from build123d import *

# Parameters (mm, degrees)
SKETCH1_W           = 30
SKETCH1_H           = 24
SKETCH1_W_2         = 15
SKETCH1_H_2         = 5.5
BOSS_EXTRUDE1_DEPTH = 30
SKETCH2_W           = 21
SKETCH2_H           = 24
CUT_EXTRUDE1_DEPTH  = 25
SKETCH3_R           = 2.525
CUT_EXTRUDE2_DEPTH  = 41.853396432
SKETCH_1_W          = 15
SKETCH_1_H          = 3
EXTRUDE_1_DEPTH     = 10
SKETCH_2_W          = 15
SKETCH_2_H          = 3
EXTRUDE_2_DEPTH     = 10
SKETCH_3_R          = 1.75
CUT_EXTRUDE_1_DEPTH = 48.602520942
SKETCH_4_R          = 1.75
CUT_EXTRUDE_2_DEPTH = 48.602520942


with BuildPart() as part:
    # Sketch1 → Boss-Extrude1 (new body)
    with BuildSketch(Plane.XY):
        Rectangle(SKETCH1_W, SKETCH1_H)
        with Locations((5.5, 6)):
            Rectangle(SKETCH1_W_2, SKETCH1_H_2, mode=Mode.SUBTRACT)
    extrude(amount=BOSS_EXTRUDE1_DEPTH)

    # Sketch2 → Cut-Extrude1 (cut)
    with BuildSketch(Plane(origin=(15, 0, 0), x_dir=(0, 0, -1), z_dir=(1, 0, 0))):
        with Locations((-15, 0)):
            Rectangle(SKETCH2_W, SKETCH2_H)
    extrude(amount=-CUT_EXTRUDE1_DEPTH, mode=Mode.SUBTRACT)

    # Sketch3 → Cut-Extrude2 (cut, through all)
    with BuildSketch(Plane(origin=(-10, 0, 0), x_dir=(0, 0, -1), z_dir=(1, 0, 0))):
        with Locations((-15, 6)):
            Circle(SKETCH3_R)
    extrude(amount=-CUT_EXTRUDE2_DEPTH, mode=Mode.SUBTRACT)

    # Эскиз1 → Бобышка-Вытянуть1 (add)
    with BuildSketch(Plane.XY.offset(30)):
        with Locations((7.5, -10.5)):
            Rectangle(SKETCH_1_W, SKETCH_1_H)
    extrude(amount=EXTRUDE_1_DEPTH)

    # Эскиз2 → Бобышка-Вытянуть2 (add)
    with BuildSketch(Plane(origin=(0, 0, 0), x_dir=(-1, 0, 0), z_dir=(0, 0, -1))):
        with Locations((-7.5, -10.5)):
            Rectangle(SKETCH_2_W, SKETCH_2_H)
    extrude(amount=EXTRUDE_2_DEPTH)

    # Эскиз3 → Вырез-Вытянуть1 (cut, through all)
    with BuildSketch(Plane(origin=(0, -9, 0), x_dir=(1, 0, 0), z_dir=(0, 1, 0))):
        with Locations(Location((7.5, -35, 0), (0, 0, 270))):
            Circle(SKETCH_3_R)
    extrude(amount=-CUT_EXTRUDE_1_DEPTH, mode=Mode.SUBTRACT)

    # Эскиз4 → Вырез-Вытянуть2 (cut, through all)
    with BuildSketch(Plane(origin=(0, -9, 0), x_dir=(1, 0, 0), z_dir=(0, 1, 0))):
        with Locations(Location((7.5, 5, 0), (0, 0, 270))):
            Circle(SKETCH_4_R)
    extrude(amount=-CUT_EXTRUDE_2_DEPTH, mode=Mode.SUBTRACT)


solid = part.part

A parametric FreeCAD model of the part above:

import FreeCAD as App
import Part
import Sketcher

doc = App.newDocument("Part")
body = doc.addObject("PartDesign::Body", "Body")

# Sketch on XY plane
sketch1 = doc.addObject("Sketcher::SketchObject", "Sketch")
body.addObject(sketch1)
sketch1.AttachmentSupport = (doc.XY_Plane, [""])
sketch1.MapMode = "FlatFace"
sketch1.addGeometry([
    Part.LineSegment(App.Vector(-15, 12, 0), App.Vector(-15, -12, 0)),  # 0
    Part.LineSegment(App.Vector(-15, -12, 0), App.Vector(15, -12, 0)),  # 1
    Part.LineSegment(App.Vector(15, -12, 0), App.Vector(15, 12, 0)),  # 2
    Part.LineSegment(App.Vector(15, 12, 0), App.Vector(-15, 12, 0)),  # 3
    Part.LineSegment(App.Vector(13, 3, 0), App.Vector(-2, 3, 0)),  # 4
    Part.LineSegment(App.Vector(-2, 3, 0), App.Vector(-2, 9, 0)),  # 5
    Part.LineSegment(App.Vector(-2, 9, 0), App.Vector(13, 9, 0)),  # 6
    Part.LineSegment(App.Vector(13, 9, 0), App.Vector(13, 3, 0)),  # 7
], False)
sketch1.addConstraint([
    Sketcher.Constraint("Coincident", 0, 2, 1, 1),
    Sketcher.Constraint("Coincident", 1, 2, 2, 1),
    Sketcher.Constraint("Coincident", 2, 2, 3, 1),
    Sketcher.Constraint("Coincident", 3, 2, 0, 1),
    Sketcher.Constraint("Coincident", 4, 2, 5, 1),
    Sketcher.Constraint("Coincident", 5, 2, 6, 1),
    Sketcher.Constraint("Coincident", 6, 2, 7, 1),
    Sketcher.Constraint("Coincident", 7, 2, 4, 1),
    Sketcher.Constraint("Vertical", 0),
    Sketcher.Constraint("Horizontal", 1),
    Sketcher.Constraint("Vertical", 2),
    Sketcher.Constraint("Horizontal", 3),
    Sketcher.Constraint("Horizontal", 4),
    Sketcher.Constraint("Vertical", 5),
    Sketcher.Constraint("Horizontal", 6),
    Sketcher.Constraint("Vertical", 7),
    Sketcher.Constraint("Symmetric", 0, 2, 2, 2, -1, 1),
    Sketcher.Constraint("DistanceX", 1, 1, 1, 2, 30.0),
    Sketcher.Constraint("DistanceX", 4, 2, 4, 1, 15.0),
    Sketcher.Constraint("DistanceY", 0, 2, 0, 1, 24.0),
    Sketcher.Constraint("DistanceY", 5, 1, 5, 2, 5.5),
    Sketcher.Constraint("DistanceX", 4, 2, -1, 1, 2.0),
    Sketcher.Constraint("DistanceY", -1, 1, 4, 2, 3.25),
])
pad1 = doc.addObject("PartDesign::Pad", "Pad")
body.addObject(pad1)
pad1.Profile = sketch1
pad1.Length = 30

# Sketch on YZ plane
sketch2 = doc.addObject("Sketcher::SketchObject", "Sketch001")
body.addObject(sketch2)
sketch2.AttachmentSupport = (doc.YZ_Plane, [""])
sketch2.MapMode = "FlatFace"
sketch2.AttachmentOffset = App.Placement(App.Vector(0, 0, 15), App.Rotation())
sketch2.addGeometry([
    Part.LineSegment(App.Vector(12, 26, 0), App.Vector(-12, 26, 0)),
    Part.LineSegment(App.Vector(-12, 26, 0), App.Vector(-12, 4, 0)),
    Part.LineSegment(App.Vector(-12, 4, 0), App.Vector(12, 4, 0)),
    Part.LineSegment(App.Vector(12, 4, 0), App.Vector(12, 26, 0)),
], False)
sketch2.addConstraint([
    Sketcher.Constraint("Coincident", 0, 2, 1, 1),
    Sketcher.Constraint("Coincident", 1, 2, 2, 1),
    Sketcher.Constraint("Coincident", 2, 2, 3, 1),
    Sketcher.Constraint("Coincident", 3, 2, 0, 1),
    Sketcher.Constraint("Horizontal", 0),
    Sketcher.Constraint("Vertical", 1),
    Sketcher.Constraint("Horizontal", 2),
    Sketcher.Constraint("Vertical", 3),
    Sketcher.Constraint("DistanceX", 0, 2, 0, 1, 24.0),
    Sketcher.Constraint("DistanceY", 1, 2, 1, 1, 21.0),
    Sketcher.Constraint("DistanceX", 0, 2, -1, 1, 12.0),
    Sketcher.Constraint("DistanceY", -1, 1, 0, 2, 25.5),
])
pocket1 = doc.addObject("PartDesign::Pocket", "Pocket")
body.addObject(pocket1)
pocket1.Profile = sketch2
pocket1.Length = 25

# Sketch on YZ plane
sketch3 = doc.addObject("Sketcher::SketchObject", "Sketch002")
body.addObject(sketch3)
sketch3.AttachmentSupport = (doc.YZ_Plane, [""])
sketch3.MapMode = "FlatFace"
sketch3.AttachmentOffset = App.Placement(App.Vector(0, 0, -10), App.Rotation())
sketch3.addGeometry(Part.Circle(App.Vector(6, 15, 0), App.Vector(0, 0, 1), 2.5), False)
sketch3.addConstraint([
    Sketcher.Constraint("Diameter", 0, 5.05),
    Sketcher.Constraint("DistanceX", -1, 1, 0, 3, 6.0),
    Sketcher.Constraint("DistanceY", -1, 1, 0, 3, 15.0),
])
pocket2 = doc.addObject("PartDesign::Pocket", "Pocket001")
body.addObject(pocket2)
pocket2.Profile = sketch3
pocket2.Type = "ThroughAll"

# Sketch on XY plane
sketch4 = doc.addObject("Sketcher::SketchObject", "Sketch003")
body.addObject(sketch4)
sketch4.AttachmentSupport = (doc.XY_Plane, [""])
sketch4.MapMode = "FlatFace"
sketch4.AttachmentOffset = App.Placement(App.Vector(0, 0, 30), App.Rotation())
sketch4.addGeometry([
    Part.LineSegment(App.Vector(0, -9, 0), App.Vector(0, -12, 0)),
    Part.LineSegment(App.Vector(0, -12, 0), App.Vector(15, -12, 0)),
    Part.LineSegment(App.Vector(15, -12, 0), App.Vector(15, -9, 0)),
    Part.LineSegment(App.Vector(15, -9, 0), App.Vector(0, -9, 0)),
], False)
sketch4.addConstraint([
    Sketcher.Constraint("Coincident", 0, 2, 1, 1),
    Sketcher.Constraint("Coincident", 1, 2, 2, 1),
    Sketcher.Constraint("Coincident", 2, 2, 3, 1),
    Sketcher.Constraint("Coincident", 3, 2, 0, 1),
    Sketcher.Constraint("Vertical", 0),
    Sketcher.Constraint("Horizontal", 1),
    Sketcher.Constraint("Vertical", 2),
    Sketcher.Constraint("Horizontal", 3),
    Sketcher.Constraint("PointOnObject", 0, 2, -2),
    Sketcher.Constraint("DistanceX", 1, 1, 1, 2, 15.0),
    Sketcher.Constraint("DistanceY", 0, 2, 0, 1, 3.0),
    Sketcher.Constraint("DistanceY", 0, 2, -1, 1, 12.0),
])
pad2 = doc.addObject("PartDesign::Pad", "Pad001")
body.addObject(pad2)
pad2.Profile = sketch4
pad2.Length = 10

# Sketch on XY plane
sketch5 = doc.addObject("Sketcher::SketchObject", "Sketch004")
body.addObject(sketch5)
sketch5.AttachmentSupport = (doc.XY_Plane, [""])
sketch5.MapMode = "FlatFace"
sketch5.addGeometry([
    Part.LineSegment(App.Vector(15, -9, 0), App.Vector(15, -12, 0)),
    Part.LineSegment(App.Vector(15, -12, 0), App.Vector(0, -12, 0)),
    Part.LineSegment(App.Vector(0, -12, 0), App.Vector(0, -9, 0)),
    Part.LineSegment(App.Vector(0, -9, 0), App.Vector(15, -9, 0)),
], False)
sketch5.addConstraint([
    Sketcher.Constraint("Coincident", 0, 2, 1, 1),
    Sketcher.Constraint("Coincident", 1, 2, 2, 1),
    Sketcher.Constraint("Coincident", 2, 2, 3, 1),
    Sketcher.Constraint("Coincident", 3, 2, 0, 1),
    Sketcher.Constraint("Vertical", 0),
    Sketcher.Constraint("Horizontal", 1),
    Sketcher.Constraint("Vertical", 2),
    Sketcher.Constraint("Horizontal", 3),
    Sketcher.Constraint("PointOnObject", 1, 2, -2),
    Sketcher.Constraint("DistanceX", 1, 2, 1, 1, 15.0),
    Sketcher.Constraint("DistanceY", 0, 2, 0, 1, 3.0),
    Sketcher.Constraint("DistanceY", 0, 2, -1, 1, 12.0),
])
pad3 = doc.addObject("PartDesign::Pad", "Pad002")
body.addObject(pad3)
pad3.Profile = sketch5
pad3.Length = 10
pad3.Reversed = True

# Sketch on XZ plane
sketch6 = doc.addObject("Sketcher::SketchObject", "Sketch005")
body.addObject(sketch6)
sketch6.AttachmentSupport = (doc.XZ_Plane, [""])
sketch6.MapMode = "FlatFace"
sketch6.AttachmentOffset = App.Placement(App.Vector(0, 0, 9), App.Rotation())
sketch6.addGeometry(Part.Circle(App.Vector(7.5, 35, 0), App.Vector(0, 0, 1), 1.8), False)
sketch6.addConstraint([
    Sketcher.Constraint("Diameter", 0, 3.5),
    Sketcher.Constraint("DistanceY", -1, 1, 0, 3, 35.0),
    Sketcher.Constraint("DistanceX", -1, 1, 0, 3, 7.5),
])
pocket3 = doc.addObject("PartDesign::Pocket", "Pocket002")
body.addObject(pocket3)
pocket3.Profile = sketch6
pocket3.Type = "ThroughAll"
pocket3.Reversed = True

# Sketch on XZ plane
sketch7 = doc.addObject("Sketcher::SketchObject", "Sketch006")
body.addObject(sketch7)
sketch7.AttachmentSupport = (doc.XZ_Plane, [""])
sketch7.MapMode = "FlatFace"
sketch7.AttachmentOffset = App.Placement(App.Vector(0, 0, 9), App.Rotation())
sketch7.addGeometry(Part.Circle(App.Vector(7.5, -5, 0), App.Vector(0, 0, 1), 1.8), False)
sketch7.addConstraint([
    Sketcher.Constraint("Diameter", 0, 3.5),
    Sketcher.Constraint("DistanceY", 0, 3, -1, 1, 5.0),
    Sketcher.Constraint("DistanceX", -1, 1, 0, 3, 7.5),
])
pocket4 = doc.addObject("PartDesign::Pocket", "Pocket003")
body.addObject(pocket4)
pocket4.Profile = sketch7
pocket4.Type = "ThroughAll"
pocket4.Reversed = True

doc.recompute()
